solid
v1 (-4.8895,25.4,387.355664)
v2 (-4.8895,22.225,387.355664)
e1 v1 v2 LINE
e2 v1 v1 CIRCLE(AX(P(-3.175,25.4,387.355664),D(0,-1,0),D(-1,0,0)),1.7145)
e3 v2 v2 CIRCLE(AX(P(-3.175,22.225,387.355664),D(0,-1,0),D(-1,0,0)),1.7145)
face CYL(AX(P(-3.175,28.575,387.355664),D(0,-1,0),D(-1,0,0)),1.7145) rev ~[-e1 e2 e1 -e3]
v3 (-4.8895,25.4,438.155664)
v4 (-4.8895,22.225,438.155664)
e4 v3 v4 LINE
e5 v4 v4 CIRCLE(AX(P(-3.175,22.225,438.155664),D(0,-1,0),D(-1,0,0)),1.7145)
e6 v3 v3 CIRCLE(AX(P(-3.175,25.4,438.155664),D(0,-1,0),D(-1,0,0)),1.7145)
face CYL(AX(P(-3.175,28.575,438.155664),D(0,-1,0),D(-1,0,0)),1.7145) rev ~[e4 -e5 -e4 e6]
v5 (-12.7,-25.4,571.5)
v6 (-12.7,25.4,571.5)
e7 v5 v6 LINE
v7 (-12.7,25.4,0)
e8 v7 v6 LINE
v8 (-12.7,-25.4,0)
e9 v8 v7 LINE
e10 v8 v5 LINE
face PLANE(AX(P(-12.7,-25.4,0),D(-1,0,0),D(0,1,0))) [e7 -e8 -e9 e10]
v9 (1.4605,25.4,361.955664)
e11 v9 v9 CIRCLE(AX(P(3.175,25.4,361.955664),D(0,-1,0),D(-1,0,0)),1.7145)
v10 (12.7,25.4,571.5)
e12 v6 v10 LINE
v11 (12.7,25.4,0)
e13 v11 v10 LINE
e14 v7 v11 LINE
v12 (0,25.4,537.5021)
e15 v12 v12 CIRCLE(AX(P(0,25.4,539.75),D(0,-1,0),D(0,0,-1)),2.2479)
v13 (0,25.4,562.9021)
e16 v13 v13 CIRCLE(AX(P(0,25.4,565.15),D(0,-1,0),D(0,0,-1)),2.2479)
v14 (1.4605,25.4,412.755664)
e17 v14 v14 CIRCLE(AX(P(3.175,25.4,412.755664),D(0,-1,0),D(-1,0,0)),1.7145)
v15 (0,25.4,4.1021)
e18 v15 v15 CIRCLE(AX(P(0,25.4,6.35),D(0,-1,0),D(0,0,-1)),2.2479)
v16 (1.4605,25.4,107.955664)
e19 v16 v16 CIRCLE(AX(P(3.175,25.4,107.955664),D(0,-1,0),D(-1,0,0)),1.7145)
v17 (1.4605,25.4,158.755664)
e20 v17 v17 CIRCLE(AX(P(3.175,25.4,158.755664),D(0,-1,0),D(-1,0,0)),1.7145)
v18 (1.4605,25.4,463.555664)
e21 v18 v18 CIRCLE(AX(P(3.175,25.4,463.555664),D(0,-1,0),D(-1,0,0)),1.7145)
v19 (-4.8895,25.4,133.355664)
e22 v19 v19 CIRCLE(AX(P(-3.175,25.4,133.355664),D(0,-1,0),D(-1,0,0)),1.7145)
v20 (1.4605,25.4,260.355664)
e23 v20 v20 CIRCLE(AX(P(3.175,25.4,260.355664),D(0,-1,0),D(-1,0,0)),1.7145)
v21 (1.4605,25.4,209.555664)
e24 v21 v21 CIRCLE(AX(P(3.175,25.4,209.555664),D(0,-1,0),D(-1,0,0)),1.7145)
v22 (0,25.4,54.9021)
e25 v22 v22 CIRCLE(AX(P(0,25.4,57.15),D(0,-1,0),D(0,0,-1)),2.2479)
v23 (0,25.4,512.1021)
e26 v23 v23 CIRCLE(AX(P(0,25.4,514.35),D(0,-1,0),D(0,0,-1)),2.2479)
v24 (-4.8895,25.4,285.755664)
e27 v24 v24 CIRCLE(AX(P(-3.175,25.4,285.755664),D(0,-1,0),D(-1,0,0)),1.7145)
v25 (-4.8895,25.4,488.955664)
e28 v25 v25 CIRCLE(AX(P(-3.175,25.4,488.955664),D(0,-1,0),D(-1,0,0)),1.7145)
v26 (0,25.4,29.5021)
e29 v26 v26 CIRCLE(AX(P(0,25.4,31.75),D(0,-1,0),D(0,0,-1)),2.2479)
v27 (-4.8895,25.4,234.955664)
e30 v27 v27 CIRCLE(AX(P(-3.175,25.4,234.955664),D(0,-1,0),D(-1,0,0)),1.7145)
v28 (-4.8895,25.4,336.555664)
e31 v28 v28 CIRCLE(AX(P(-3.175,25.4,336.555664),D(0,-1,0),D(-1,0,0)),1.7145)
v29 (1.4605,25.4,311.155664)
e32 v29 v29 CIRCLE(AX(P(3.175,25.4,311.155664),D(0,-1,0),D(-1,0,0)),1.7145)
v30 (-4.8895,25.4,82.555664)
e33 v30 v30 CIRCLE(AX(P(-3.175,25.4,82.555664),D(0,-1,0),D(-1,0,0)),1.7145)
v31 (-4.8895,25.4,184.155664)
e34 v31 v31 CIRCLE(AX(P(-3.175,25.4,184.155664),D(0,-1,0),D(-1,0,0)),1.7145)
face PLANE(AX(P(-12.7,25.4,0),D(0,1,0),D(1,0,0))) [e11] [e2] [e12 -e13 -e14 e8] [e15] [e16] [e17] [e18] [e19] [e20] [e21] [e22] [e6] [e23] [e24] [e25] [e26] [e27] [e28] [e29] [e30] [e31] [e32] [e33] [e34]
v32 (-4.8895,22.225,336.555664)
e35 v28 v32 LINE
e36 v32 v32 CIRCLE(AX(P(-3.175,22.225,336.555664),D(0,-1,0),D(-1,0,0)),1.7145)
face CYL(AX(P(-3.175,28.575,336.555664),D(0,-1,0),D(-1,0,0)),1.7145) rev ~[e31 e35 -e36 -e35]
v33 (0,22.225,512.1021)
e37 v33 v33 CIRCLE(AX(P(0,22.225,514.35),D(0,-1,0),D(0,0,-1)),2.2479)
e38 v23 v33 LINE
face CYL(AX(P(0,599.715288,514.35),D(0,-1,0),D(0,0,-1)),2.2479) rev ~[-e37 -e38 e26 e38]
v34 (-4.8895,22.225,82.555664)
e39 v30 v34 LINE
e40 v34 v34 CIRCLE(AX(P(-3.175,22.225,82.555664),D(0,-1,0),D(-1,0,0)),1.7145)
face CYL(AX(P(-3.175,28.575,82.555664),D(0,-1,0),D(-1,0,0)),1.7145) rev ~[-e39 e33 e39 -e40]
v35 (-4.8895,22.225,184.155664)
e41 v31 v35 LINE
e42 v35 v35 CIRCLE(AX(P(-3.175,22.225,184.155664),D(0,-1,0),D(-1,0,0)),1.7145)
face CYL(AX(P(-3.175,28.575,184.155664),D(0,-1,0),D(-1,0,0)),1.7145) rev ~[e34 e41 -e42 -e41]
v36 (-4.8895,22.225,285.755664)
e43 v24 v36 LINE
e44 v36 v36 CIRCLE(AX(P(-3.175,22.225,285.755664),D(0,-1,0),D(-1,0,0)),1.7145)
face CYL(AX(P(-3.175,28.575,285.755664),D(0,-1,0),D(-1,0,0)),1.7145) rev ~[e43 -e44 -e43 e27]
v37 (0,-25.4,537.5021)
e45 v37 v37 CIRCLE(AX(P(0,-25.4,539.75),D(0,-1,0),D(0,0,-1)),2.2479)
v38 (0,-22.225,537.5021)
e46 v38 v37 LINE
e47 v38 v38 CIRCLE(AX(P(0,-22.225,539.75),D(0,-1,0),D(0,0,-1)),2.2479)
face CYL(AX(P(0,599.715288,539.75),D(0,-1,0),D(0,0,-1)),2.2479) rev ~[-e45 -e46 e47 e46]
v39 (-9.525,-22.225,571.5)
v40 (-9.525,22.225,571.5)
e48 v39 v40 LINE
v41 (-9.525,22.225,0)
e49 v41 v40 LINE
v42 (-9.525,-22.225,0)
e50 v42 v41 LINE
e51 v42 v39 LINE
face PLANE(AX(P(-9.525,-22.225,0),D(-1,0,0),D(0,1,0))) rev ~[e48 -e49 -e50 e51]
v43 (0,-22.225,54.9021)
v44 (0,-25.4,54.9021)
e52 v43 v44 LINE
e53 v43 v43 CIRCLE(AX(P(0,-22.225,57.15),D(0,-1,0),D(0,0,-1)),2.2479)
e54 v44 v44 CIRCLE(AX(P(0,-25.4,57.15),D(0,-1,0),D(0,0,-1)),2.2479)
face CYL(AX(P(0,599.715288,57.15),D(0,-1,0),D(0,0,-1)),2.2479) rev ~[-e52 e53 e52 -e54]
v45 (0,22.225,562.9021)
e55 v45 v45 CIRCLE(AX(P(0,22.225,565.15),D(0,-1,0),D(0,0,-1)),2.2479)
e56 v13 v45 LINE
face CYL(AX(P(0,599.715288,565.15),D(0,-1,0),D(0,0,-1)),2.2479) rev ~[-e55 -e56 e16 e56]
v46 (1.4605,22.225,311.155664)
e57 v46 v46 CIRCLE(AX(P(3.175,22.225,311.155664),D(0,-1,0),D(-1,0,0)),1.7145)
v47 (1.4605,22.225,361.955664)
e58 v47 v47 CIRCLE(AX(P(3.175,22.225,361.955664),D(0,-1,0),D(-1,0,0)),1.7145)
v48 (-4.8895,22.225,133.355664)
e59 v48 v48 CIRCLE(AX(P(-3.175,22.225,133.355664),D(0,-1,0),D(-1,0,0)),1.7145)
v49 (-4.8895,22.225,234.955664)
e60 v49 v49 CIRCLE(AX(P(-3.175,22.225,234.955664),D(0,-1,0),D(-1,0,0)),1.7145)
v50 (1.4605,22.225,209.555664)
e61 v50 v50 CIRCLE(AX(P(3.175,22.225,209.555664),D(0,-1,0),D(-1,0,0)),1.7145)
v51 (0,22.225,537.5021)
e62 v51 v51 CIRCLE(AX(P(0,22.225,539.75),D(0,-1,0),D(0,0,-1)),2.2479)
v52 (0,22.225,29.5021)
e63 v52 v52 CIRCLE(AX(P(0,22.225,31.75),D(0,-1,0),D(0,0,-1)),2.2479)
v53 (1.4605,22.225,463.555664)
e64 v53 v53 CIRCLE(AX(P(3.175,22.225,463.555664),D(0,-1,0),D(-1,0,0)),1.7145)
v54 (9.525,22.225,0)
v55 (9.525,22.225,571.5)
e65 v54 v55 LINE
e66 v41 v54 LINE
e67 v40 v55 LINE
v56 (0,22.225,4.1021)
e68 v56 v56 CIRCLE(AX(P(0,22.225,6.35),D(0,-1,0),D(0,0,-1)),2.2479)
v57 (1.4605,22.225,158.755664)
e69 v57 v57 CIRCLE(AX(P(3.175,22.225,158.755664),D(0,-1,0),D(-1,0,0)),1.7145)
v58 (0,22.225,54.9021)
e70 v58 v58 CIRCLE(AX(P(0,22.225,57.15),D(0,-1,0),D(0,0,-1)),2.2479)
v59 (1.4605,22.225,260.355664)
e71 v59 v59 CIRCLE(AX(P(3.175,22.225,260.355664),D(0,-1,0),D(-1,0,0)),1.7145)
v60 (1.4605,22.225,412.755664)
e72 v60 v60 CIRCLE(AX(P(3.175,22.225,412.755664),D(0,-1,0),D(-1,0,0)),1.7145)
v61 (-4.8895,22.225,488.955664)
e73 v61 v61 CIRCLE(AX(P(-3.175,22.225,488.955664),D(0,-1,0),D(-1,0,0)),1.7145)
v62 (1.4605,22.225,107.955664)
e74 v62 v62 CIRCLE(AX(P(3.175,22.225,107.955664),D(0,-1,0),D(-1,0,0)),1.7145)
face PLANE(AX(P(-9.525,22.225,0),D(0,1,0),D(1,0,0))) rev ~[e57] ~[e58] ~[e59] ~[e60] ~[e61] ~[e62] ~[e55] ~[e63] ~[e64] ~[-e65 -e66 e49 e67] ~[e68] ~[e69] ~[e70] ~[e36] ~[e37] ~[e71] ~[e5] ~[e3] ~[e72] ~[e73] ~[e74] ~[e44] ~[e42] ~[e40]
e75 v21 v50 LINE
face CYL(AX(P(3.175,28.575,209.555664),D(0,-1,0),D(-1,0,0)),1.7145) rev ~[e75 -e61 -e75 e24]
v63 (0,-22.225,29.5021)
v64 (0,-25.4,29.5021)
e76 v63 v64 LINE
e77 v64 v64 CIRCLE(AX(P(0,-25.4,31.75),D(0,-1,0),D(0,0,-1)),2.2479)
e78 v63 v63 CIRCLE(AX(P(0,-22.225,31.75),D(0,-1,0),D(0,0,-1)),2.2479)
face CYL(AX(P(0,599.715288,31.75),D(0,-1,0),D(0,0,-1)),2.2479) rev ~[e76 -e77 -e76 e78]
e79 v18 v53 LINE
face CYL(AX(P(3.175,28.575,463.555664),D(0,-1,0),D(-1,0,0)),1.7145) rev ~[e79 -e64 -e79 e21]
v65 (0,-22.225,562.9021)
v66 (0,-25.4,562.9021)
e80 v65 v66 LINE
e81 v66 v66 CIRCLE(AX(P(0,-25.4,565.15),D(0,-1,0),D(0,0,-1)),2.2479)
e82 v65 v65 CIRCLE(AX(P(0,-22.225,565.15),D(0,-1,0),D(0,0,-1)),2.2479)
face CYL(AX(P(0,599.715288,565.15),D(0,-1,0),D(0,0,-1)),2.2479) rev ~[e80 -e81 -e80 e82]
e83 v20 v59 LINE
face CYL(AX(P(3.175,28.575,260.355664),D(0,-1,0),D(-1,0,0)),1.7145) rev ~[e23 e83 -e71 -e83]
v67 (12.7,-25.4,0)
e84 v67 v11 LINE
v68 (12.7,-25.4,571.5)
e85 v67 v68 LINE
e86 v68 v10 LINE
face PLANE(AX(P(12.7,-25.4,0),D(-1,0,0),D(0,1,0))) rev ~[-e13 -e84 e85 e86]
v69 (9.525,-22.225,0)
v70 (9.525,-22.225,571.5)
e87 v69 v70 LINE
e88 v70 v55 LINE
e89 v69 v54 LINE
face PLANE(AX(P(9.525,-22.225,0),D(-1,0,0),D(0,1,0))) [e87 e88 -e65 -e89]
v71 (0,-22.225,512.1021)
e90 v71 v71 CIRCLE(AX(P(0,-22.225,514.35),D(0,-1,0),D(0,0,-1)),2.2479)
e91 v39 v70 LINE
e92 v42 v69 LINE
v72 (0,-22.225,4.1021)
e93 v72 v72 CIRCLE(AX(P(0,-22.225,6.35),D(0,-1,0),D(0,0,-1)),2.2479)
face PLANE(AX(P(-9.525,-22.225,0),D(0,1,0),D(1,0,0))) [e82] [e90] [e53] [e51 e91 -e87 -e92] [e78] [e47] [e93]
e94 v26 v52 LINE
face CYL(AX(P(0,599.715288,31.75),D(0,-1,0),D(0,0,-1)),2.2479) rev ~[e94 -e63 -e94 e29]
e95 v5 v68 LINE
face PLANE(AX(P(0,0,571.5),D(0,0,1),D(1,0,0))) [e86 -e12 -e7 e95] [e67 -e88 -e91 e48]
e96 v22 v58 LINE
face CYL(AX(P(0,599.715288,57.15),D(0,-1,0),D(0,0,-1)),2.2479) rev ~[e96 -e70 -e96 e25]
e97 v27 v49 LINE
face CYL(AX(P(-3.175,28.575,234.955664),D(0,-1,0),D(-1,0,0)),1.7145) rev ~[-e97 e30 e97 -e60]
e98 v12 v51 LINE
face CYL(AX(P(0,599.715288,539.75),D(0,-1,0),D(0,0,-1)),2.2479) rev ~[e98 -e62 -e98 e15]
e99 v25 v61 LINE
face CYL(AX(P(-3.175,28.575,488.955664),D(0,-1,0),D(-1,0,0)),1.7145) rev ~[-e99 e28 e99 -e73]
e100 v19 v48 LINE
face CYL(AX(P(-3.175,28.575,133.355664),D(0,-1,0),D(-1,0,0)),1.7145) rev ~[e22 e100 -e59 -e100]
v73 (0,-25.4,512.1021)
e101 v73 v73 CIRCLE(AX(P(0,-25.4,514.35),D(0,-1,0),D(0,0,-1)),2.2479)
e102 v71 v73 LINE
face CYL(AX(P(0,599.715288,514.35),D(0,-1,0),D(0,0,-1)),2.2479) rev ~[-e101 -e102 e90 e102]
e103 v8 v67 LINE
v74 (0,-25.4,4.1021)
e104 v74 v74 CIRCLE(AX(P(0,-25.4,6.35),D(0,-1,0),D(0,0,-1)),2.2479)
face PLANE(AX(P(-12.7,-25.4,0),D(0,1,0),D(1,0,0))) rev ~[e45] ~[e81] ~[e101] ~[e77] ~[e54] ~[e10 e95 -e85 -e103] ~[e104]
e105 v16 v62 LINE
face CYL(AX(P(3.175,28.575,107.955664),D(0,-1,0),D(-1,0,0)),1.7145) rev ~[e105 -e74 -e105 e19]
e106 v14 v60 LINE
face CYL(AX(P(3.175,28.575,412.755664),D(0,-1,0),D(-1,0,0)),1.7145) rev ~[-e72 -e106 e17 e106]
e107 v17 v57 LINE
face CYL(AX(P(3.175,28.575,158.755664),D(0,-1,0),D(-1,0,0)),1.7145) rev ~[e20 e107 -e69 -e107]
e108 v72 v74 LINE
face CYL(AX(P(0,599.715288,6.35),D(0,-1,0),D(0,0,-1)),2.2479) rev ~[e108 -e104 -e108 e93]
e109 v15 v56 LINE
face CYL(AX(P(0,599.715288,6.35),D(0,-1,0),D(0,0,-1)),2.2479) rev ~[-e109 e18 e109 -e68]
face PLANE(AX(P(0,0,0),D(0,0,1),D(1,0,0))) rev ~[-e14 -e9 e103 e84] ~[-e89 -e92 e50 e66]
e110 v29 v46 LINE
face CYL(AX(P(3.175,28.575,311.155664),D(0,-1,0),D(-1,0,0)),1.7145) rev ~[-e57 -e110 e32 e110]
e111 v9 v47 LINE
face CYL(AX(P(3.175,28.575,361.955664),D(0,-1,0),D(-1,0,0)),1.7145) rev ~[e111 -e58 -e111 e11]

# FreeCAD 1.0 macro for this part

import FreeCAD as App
import Part
import Sketcher

V = App.Vector
Q = App.Units.Quantity

doc = App.newDocument("Part")
params = doc.addObject("Spreadsheet::Sheet", "Params")
for row, (alias, value) in enumerate([
    ("sketch1_width", "1 in"),
    ("sketch1_height", "2 in"),
    ("sketch1_width2", "0.75 in"),
    ("sketch1_height2", "1.75 in"),
    ("pad1_length", "22.5 in"),
    ("sketch2_diameter", "0.177 in"),
    ("hole_diameter", "0.177 in"),
    ("sketch3_diameter", "0.135 in"),
    ("hole2_diameter", "0.135 in"),
    ("hole2_depth", "0.125 in"),
], start=1):
    params.set(f"A{row}", alias)
    params.set(f"B{row}", "=" + value)
    params.setAlias(f"B{row}", alias)

body = doc.addObject("PartDesign::Body", "Body")

# Sketch on XY plane
sketch1 = body.newObject("Sketcher::SketchObject", "Sketch")
sketch1.AttachmentSupport = (doc.getObject("XY_Plane"), [""])
sketch1.MapMode = "FlatFace"
sketch1.addGeometry(Part.LineSegment(V(-13, 25, 0), V(-13, -25, 0)), False)
sketch1.addGeometry(Part.LineSegment(V(-13, -25, 0), V(13, -25, 0)), False)
sketch1.addGeometry(Part.LineSegment(V(13, -25, 0), V(13, 25, 0)), False)
sketch1.addGeometry(Part.LineSegment(V(13, 25, 0), V(-13, 25, 0)), False)
sketch1.addGeometry(Part.LineSegment(V(10, -22, 0), V(-10, -22, 0)), False)
sketch1.addGeometry(Part.LineSegment(V(-10, -22, 0), V(-10, 22, 0)), False)
sketch1.addGeometry(Part.LineSegment(V(-10, 22, 0), V(10, 22, 0)), False)
sketch1.addGeometry(Part.LineSegment(V(10, 22, 0), V(10, -22, 0)), False)
sketch1.addConstraint(Sketcher.Constraint("Coincident", 0, 2, 1, 1))
sketch1.addConstraint(Sketcher.Constraint("Coincident", 1, 2, 2, 1))
sketch1.addConstraint(Sketcher.Constraint("Coincident", 2, 2, 3, 1))
sketch1.addConstraint(Sketcher.Constraint("Coincident", 3, 2, 0, 1))
sketch1.addConstraint(Sketcher.Constraint("Coincident", 4, 2, 5, 1))
sketch1.addConstraint(Sketcher.Constraint("Coincident", 5, 2, 6, 1))
sketch1.addConstraint(Sketcher.Constraint("Coincident", 6, 2, 7, 1))
sketch1.addConstraint(Sketcher.Constraint("Coincident", 7, 2, 4, 1))
sketch1.addConstraint(Sketcher.Constraint("Vertical", 0))
sketch1.addConstraint(Sketcher.Constraint("Horizontal", 1))
sketch1.addConstraint(Sketcher.Constraint("Vertical", 2))
sketch1.addConstraint(Sketcher.Constraint("Horizontal", 3))
sketch1.addConstraint(Sketcher.Constraint("Horizontal", 4))
sketch1.addConstraint(Sketcher.Constraint("Vertical", 5))
sketch1.addConstraint(Sketcher.Constraint("Horizontal", 6))
sketch1.addConstraint(Sketcher.Constraint("Vertical", 7))
sketch1.addConstraint(Sketcher.Constraint("Symmetric", 0, 2, 2, 2, -1, 1))
sketch1.addConstraint(Sketcher.Constraint("Symmetric", 4, 2, 6, 2, -1, 1))
sketch1.addConstraint(Sketcher.Constraint("DistanceX", 1, 1, 1, 2, Q("1 in")))
sketch1.addConstraint(Sketcher.Constraint("DistanceY", 0, 2, 0, 1, Q("2 in")))
sketch1.addConstraint(Sketcher.Constraint("DistanceX", 4, 2, 4, 1, Q("0.75 in")))
sketch1.addConstraint(Sketcher.Constraint("DistanceY", 5, 1, 5, 2, Q("1.75 in")))
sketch1.setExpression("Constraints[18]", "Params.sketch1_width")
sketch1.setExpression("Constraints[19]", "Params.sketch1_height")
sketch1.setExpression("Constraints[20]", "Params.sketch1_width2")
sketch1.setExpression("Constraints[21]", "Params.sketch1_height2")
pad1 = body.newObject("PartDesign::Pad", "Pad")
pad1.Profile = sketch1
pad1.setExpression("Length", "Params.pad1_length")

# Sketch on XZ plane
sketch2 = body.newObject("Sketcher::SketchObject", "Sketch001")
sketch2.AttachmentSupport = (doc.getObject("XZ_Plane"), [""])
sketch2.MapMode = "FlatFace"
sketch2.AttachmentOffset = App.Placement(V(0, 0, -1 * 25.4), App.Rotation())
sketch2.addGeometry(Part.Circle(V(0, 565.1, 0), V(0, 0, 1), 2.2), False)
sketch2.addGeometry(Part.Circle(V(0, 6.3, 0), V(0, 0, 1), 2.2), False)
sketch2.addGeometry(Part.Circle(V(0, 31.8, 0), V(0, 0, 1), 2.2), False)
sketch2.addGeometry(Part.Circle(V(0, 57.1, 0), V(0, 0, 1), 2.2), False)
sketch2.addGeometry(Part.Circle(V(0, 539.8, 0), V(0, 0, 1), 2.2), False)
sketch2.addGeometry(Part.Circle(V(0, 514.4, 0), V(0, 0, 1), 2.2), False)
sketch2.addConstraint(Sketcher.Constraint("Equal", 0, 1))
sketch2.addConstraint(Sketcher.Constraint("Equal", 1, 2))
sketch2.addConstraint(Sketcher.Constraint("Equal", 2, 3))
sketch2.addConstraint(Sketcher.Constraint("Equal", 3, 4))
sketch2.addConstraint(Sketcher.Constraint("Equal", 4, 5))
sketch2.addConstraint(Sketcher.Constraint("PointOnObject", 0, 3, -2))
sketch2.addConstraint(Sketcher.Constraint("PointOnObject", 1, 3, -2))
sketch2.addConstraint(Sketcher.Constraint("PointOnObject", 2, 3, -2))
sketch2.addConstraint(Sketcher.Constraint("PointOnObject", 3, 3, -2))
sketch2.addConstraint(Sketcher.Constraint("PointOnObject", 4, 3, -2))
sketch2.addConstraint(Sketcher.Constraint("PointOnObject", 5, 3, -2))
sketch2.addConstraint(Sketcher.Constraint("Diameter", 0, Q("0.177 in")))
sketch2.addConstraint(Sketcher.Constraint("DistanceY", 1, 3, 0, 3, Q("22 in")))
sketch2.addConstraint(Sketcher.Constraint("DistanceY", 1, 3, 2, 3, Q("1 in")))
sketch2.addConstraint(Sketcher.Constraint("DistanceY", 2, 3, 3, 3, Q("1 in")))
sketch2.addConstraint(Sketcher.Constraint("DistanceY", 4, 3, 0, 3, Q("1 in")))
sketch2.addConstraint(Sketcher.Constraint("DistanceY", 5, 3, 4, 3, Q("1 in")))
sketch2.addConstraint(Sketcher.Constraint("DistanceY", -1, 1, 0, 3, Q("22.25 in")))
sketch2.setExpression("Constraints[11]", "Params.sketch2_diameter")
doc.recompute()
hole = body.newObject("PartDesign::Hole", "Hole")
hole.Profile = sketch2
hole.ThreadType = "None"
hole.setExpression("Diameter", "Params.hole_diameter")
hole.DepthType = "ThroughAll"
hole.Reversed = True

# Sketch on XZ plane
sketch3 = body.newObject("Sketcher::SketchObject", "Sketch002")
sketch3.AttachmentSupport = (doc.getObject("XZ_Plane"), [""])
sketch3.MapMode = "FlatFace"
sketch3.AttachmentOffset = App.Placement(V(0, 0, -1 * 25.4), App.Rotation())
sketch3.addGeometry(Part.Circle(V(-3.2, 82.6, 0), V(0, 0, 1), 1.7), False)
sketch3.addGeometry(Part.Circle(V(3.2, 108, 0), V(0, 0, 1), 1.7), False)
sketch3.addGeometry(Part.Circle(V(-3.2, 133.4, 0), V(0, 0, 1), 1.7), False)
sketch3.addGeometry(Part.Circle(V(3.2, 158.8, 0), V(0, 0, 1), 1.7), False)
sketch3.addGeometry(Part.Circle(V(-3.2, 184.2, 0), V(0, 0, 1), 1.7), False)
sketch3.addGeometry(Part.Circle(V(3.2, 209.6, 0), V(0, 0, 1), 1.7), False)
sketch3.addGeometry(Part.Circle(V(-3.2, 235, 0), V(0, 0, 1), 1.7), False)
sketch3.addGeometry(Part.Circle(V(3.2, 260.4, 0), V(0, 0, 1), 1.7), False)
sketch3.addGeometry(Part.Circle(V(-3.2, 285.8, 0), V(0, 0, 1), 1.7), False)
sketch3.addGeometry(Part.Circle(V(3.2, 311.2, 0), V(0, 0, 1), 1.7), False)
sketch3.addGeometry(Part.Circle(V(-3.2, 336.6, 0), V(0, 0, 1), 1.7), False)
sketch3.addGeometry(Part.Circle(V(3.2, 362, 0), V(0, 0, 1), 1.7), False)
sketch3.addGeometry(Part.Circle(V(-3.2, 387.4, 0), V(0, 0, 1), 1.7), False)
sketch3.addGeometry(Part.Circle(V(3.2, 412.8, 0), V(0, 0, 1), 1.7), False)
sketch3.addGeometry(Part.Circle(V(-3.2, 438.2, 0), V(0, 0, 1), 1.7), False)
sketch3.addGeometry(Part.Circle(V(3.2, 463.6, 0), V(0, 0, 1), 1.7), False)
sketch3.addGeometry(Part.Circle(V(-3.2, 489, 0), V(0, 0, 1), 1.7), False)
sketch3.addConstraint(Sketcher.Constraint("Equal", 0, 1))
sketch3.addConstraint(Sketcher.Constraint("Equal", 1, 2))
sketch3.addConstraint(Sketcher.Constraint("Equal", 2, 3))
sketch3.addConstraint(Sketcher.Constraint("Equal", 3, 4))
sketch3.addConstraint(Sketcher.Constraint("Equal", 4, 5))
sketch3.addConstraint(Sketcher.Constraint("Equal", 5, 6))
sketch3.addConstraint(Sketcher.Constraint("Equal", 6, 7))
sketch3.addConstraint(Sketcher.Constraint("Equal", 7, 8))
sketch3.addConstraint(Sketcher.Constraint("Equal", 8, 9))
sketch3.addConstraint(Sketcher.Constraint("Equal", 9, 10))
sketch3.addConstraint(Sketcher.Constraint("Equal", 10, 11))
sketch3.addConstraint(Sketcher.Constraint("Equal", 11, 12))
sketch3.addConstraint(Sketcher.Constraint("Equal", 12, 13))
sketch3.addConstraint(Sketcher.Constraint("Equal", 13, 14))
sketch3.addConstraint(Sketcher.Constraint("Equal", 14, 15))
sketch3.addConstraint(Sketcher.Constraint("Equal", 15, 16))
sketch3.addConstraint(Sketcher.Constraint("Vertical", 0, 3, 2, 3))
sketch3.addConstraint(Sketcher.Constraint("Vertical", 1, 3, 3, 3))
sketch3.addConstraint(Sketcher.Constraint("Vertical", 2, 3, 4, 3))
sketch3.addConstraint(Sketcher.Constraint("Vertical", 3, 3, 5, 3))
sketch3.addConstraint(Sketcher.Constraint("Vertical", 4, 3, 6, 3))
sketch3.addConstraint(Sketcher.Constraint("Vertical", 5, 3, 7, 3))
sketch3.addConstraint(Sketcher.Constraint("Vertical", 6, 3, 8, 3))
sketch3.addConstraint(Sketcher.Constraint("Vertical", 7, 3, 9, 3))
sketch3.addConstraint(Sketcher.Constraint("Vertical", 8, 3, 10, 3))
sketch3.addConstraint(Sketcher.Constraint("Vertical", 9, 3, 11, 3))
sketch3.addConstraint(Sketcher.Constraint("Vertical", 10, 3, 12, 3))
sketch3.addConstraint(Sketcher.Constraint("Vertical", 11, 3, 13, 3))
sketch3.addConstraint(Sketcher.Constraint("Vertical", 12, 3, 14, 3))
sketch3.addConstraint(Sketcher.Constraint("Vertical", 13, 3, 15, 3))
sketch3.addConstraint(Sketcher.Constraint("Vertical", 14, 3, 16, 3))
sketch3.addConstraint(Sketcher.Constraint("Diameter", 0, Q("0.135 in")))
sketch3.addConstraint(Sketcher.Constraint("DistanceY", 0, 3, 1, 3, Q("1 in")))
sketch3.addConstraint(Sketcher.Constraint("DistanceY", 1, 3, 2, 3, Q("1 in")))
sketch3.addConstraint(Sketcher.Constraint("DistanceY", 2, 3, 3, 3, Q("1 in")))
sketch3.addConstraint(Sketcher.Constraint("DistanceY", 3, 3, 4, 3, Q("1 in")))
sketch3.addConstraint(Sketcher.Constraint("DistanceY", 4, 3, 5, 3, Q("1 in")))
sketch3.addConstraint(Sketcher.Constraint("DistanceY", 5, 3, 6, 3, Q("1 in")))
sketch3.addConstraint(Sketcher.Constraint("DistanceY", 6, 3, 7, 3, Q("1 in")))
sketch3.addConstraint(Sketcher.Constraint("DistanceY", 7, 3, 8, 3, Q("1 in")))
sketch3.addConstraint(Sketcher.Constraint("DistanceY", 8, 3, 9, 3, Q("1 in")))
sketch3.addConstraint(Sketcher.Constraint("DistanceY", 9, 3, 10, 3, Q("1 in")))
sketch3.addConstraint(Sketcher.Constraint("DistanceY", 10, 3, 11, 3, Q("1 in")))
sketch3.addConstraint(Sketcher.Constraint("DistanceY", 11, 3, 12, 3, Q("1 in")))
sketch3.addConstraint(Sketcher.Constraint("DistanceY", 12, 3, 13, 3, Q("1 in")))
sketch3.addConstraint(Sketcher.Constraint("DistanceY", 13, 3, 14, 3, Q("1 in")))
sketch3.addConstraint(Sketcher.Constraint("DistanceY", 14, 3, 15, 3, Q("1 in")))
sketch3.addConstraint(Sketcher.Constraint("DistanceY", 15, 3, 16, 3, Q("1 in")))
sketch3.addConstraint(Sketcher.Constraint("DistanceX", 0, 3, 1, 3, Q("0.25 in")))
sketch3.addConstraint(Sketcher.Constraint("DistanceX", 0, 3, -1, 1, Q("0.125 in")))
sketch3.addConstraint(Sketcher.Constraint("DistanceY", -1, 1, 0, 3, 82.555664))
sketch3.setExpression("Constraints[31]", "Params.sketch3_diameter")
doc.recompute()
hole2 = body.newObject("PartDesign::Hole", "Hole001")
hole2.Profile = sketch3
hole2.ThreadType = "None"
hole2.setExpression("Diameter", "Params.hole2_diameter")
hole2.DepthType = "Dimension"
hole2.setExpression("Depth", "Params.hole2_depth")
hole2.DrillPoint = "Flat"
hole2.Reversed = True

doc.recompute()
